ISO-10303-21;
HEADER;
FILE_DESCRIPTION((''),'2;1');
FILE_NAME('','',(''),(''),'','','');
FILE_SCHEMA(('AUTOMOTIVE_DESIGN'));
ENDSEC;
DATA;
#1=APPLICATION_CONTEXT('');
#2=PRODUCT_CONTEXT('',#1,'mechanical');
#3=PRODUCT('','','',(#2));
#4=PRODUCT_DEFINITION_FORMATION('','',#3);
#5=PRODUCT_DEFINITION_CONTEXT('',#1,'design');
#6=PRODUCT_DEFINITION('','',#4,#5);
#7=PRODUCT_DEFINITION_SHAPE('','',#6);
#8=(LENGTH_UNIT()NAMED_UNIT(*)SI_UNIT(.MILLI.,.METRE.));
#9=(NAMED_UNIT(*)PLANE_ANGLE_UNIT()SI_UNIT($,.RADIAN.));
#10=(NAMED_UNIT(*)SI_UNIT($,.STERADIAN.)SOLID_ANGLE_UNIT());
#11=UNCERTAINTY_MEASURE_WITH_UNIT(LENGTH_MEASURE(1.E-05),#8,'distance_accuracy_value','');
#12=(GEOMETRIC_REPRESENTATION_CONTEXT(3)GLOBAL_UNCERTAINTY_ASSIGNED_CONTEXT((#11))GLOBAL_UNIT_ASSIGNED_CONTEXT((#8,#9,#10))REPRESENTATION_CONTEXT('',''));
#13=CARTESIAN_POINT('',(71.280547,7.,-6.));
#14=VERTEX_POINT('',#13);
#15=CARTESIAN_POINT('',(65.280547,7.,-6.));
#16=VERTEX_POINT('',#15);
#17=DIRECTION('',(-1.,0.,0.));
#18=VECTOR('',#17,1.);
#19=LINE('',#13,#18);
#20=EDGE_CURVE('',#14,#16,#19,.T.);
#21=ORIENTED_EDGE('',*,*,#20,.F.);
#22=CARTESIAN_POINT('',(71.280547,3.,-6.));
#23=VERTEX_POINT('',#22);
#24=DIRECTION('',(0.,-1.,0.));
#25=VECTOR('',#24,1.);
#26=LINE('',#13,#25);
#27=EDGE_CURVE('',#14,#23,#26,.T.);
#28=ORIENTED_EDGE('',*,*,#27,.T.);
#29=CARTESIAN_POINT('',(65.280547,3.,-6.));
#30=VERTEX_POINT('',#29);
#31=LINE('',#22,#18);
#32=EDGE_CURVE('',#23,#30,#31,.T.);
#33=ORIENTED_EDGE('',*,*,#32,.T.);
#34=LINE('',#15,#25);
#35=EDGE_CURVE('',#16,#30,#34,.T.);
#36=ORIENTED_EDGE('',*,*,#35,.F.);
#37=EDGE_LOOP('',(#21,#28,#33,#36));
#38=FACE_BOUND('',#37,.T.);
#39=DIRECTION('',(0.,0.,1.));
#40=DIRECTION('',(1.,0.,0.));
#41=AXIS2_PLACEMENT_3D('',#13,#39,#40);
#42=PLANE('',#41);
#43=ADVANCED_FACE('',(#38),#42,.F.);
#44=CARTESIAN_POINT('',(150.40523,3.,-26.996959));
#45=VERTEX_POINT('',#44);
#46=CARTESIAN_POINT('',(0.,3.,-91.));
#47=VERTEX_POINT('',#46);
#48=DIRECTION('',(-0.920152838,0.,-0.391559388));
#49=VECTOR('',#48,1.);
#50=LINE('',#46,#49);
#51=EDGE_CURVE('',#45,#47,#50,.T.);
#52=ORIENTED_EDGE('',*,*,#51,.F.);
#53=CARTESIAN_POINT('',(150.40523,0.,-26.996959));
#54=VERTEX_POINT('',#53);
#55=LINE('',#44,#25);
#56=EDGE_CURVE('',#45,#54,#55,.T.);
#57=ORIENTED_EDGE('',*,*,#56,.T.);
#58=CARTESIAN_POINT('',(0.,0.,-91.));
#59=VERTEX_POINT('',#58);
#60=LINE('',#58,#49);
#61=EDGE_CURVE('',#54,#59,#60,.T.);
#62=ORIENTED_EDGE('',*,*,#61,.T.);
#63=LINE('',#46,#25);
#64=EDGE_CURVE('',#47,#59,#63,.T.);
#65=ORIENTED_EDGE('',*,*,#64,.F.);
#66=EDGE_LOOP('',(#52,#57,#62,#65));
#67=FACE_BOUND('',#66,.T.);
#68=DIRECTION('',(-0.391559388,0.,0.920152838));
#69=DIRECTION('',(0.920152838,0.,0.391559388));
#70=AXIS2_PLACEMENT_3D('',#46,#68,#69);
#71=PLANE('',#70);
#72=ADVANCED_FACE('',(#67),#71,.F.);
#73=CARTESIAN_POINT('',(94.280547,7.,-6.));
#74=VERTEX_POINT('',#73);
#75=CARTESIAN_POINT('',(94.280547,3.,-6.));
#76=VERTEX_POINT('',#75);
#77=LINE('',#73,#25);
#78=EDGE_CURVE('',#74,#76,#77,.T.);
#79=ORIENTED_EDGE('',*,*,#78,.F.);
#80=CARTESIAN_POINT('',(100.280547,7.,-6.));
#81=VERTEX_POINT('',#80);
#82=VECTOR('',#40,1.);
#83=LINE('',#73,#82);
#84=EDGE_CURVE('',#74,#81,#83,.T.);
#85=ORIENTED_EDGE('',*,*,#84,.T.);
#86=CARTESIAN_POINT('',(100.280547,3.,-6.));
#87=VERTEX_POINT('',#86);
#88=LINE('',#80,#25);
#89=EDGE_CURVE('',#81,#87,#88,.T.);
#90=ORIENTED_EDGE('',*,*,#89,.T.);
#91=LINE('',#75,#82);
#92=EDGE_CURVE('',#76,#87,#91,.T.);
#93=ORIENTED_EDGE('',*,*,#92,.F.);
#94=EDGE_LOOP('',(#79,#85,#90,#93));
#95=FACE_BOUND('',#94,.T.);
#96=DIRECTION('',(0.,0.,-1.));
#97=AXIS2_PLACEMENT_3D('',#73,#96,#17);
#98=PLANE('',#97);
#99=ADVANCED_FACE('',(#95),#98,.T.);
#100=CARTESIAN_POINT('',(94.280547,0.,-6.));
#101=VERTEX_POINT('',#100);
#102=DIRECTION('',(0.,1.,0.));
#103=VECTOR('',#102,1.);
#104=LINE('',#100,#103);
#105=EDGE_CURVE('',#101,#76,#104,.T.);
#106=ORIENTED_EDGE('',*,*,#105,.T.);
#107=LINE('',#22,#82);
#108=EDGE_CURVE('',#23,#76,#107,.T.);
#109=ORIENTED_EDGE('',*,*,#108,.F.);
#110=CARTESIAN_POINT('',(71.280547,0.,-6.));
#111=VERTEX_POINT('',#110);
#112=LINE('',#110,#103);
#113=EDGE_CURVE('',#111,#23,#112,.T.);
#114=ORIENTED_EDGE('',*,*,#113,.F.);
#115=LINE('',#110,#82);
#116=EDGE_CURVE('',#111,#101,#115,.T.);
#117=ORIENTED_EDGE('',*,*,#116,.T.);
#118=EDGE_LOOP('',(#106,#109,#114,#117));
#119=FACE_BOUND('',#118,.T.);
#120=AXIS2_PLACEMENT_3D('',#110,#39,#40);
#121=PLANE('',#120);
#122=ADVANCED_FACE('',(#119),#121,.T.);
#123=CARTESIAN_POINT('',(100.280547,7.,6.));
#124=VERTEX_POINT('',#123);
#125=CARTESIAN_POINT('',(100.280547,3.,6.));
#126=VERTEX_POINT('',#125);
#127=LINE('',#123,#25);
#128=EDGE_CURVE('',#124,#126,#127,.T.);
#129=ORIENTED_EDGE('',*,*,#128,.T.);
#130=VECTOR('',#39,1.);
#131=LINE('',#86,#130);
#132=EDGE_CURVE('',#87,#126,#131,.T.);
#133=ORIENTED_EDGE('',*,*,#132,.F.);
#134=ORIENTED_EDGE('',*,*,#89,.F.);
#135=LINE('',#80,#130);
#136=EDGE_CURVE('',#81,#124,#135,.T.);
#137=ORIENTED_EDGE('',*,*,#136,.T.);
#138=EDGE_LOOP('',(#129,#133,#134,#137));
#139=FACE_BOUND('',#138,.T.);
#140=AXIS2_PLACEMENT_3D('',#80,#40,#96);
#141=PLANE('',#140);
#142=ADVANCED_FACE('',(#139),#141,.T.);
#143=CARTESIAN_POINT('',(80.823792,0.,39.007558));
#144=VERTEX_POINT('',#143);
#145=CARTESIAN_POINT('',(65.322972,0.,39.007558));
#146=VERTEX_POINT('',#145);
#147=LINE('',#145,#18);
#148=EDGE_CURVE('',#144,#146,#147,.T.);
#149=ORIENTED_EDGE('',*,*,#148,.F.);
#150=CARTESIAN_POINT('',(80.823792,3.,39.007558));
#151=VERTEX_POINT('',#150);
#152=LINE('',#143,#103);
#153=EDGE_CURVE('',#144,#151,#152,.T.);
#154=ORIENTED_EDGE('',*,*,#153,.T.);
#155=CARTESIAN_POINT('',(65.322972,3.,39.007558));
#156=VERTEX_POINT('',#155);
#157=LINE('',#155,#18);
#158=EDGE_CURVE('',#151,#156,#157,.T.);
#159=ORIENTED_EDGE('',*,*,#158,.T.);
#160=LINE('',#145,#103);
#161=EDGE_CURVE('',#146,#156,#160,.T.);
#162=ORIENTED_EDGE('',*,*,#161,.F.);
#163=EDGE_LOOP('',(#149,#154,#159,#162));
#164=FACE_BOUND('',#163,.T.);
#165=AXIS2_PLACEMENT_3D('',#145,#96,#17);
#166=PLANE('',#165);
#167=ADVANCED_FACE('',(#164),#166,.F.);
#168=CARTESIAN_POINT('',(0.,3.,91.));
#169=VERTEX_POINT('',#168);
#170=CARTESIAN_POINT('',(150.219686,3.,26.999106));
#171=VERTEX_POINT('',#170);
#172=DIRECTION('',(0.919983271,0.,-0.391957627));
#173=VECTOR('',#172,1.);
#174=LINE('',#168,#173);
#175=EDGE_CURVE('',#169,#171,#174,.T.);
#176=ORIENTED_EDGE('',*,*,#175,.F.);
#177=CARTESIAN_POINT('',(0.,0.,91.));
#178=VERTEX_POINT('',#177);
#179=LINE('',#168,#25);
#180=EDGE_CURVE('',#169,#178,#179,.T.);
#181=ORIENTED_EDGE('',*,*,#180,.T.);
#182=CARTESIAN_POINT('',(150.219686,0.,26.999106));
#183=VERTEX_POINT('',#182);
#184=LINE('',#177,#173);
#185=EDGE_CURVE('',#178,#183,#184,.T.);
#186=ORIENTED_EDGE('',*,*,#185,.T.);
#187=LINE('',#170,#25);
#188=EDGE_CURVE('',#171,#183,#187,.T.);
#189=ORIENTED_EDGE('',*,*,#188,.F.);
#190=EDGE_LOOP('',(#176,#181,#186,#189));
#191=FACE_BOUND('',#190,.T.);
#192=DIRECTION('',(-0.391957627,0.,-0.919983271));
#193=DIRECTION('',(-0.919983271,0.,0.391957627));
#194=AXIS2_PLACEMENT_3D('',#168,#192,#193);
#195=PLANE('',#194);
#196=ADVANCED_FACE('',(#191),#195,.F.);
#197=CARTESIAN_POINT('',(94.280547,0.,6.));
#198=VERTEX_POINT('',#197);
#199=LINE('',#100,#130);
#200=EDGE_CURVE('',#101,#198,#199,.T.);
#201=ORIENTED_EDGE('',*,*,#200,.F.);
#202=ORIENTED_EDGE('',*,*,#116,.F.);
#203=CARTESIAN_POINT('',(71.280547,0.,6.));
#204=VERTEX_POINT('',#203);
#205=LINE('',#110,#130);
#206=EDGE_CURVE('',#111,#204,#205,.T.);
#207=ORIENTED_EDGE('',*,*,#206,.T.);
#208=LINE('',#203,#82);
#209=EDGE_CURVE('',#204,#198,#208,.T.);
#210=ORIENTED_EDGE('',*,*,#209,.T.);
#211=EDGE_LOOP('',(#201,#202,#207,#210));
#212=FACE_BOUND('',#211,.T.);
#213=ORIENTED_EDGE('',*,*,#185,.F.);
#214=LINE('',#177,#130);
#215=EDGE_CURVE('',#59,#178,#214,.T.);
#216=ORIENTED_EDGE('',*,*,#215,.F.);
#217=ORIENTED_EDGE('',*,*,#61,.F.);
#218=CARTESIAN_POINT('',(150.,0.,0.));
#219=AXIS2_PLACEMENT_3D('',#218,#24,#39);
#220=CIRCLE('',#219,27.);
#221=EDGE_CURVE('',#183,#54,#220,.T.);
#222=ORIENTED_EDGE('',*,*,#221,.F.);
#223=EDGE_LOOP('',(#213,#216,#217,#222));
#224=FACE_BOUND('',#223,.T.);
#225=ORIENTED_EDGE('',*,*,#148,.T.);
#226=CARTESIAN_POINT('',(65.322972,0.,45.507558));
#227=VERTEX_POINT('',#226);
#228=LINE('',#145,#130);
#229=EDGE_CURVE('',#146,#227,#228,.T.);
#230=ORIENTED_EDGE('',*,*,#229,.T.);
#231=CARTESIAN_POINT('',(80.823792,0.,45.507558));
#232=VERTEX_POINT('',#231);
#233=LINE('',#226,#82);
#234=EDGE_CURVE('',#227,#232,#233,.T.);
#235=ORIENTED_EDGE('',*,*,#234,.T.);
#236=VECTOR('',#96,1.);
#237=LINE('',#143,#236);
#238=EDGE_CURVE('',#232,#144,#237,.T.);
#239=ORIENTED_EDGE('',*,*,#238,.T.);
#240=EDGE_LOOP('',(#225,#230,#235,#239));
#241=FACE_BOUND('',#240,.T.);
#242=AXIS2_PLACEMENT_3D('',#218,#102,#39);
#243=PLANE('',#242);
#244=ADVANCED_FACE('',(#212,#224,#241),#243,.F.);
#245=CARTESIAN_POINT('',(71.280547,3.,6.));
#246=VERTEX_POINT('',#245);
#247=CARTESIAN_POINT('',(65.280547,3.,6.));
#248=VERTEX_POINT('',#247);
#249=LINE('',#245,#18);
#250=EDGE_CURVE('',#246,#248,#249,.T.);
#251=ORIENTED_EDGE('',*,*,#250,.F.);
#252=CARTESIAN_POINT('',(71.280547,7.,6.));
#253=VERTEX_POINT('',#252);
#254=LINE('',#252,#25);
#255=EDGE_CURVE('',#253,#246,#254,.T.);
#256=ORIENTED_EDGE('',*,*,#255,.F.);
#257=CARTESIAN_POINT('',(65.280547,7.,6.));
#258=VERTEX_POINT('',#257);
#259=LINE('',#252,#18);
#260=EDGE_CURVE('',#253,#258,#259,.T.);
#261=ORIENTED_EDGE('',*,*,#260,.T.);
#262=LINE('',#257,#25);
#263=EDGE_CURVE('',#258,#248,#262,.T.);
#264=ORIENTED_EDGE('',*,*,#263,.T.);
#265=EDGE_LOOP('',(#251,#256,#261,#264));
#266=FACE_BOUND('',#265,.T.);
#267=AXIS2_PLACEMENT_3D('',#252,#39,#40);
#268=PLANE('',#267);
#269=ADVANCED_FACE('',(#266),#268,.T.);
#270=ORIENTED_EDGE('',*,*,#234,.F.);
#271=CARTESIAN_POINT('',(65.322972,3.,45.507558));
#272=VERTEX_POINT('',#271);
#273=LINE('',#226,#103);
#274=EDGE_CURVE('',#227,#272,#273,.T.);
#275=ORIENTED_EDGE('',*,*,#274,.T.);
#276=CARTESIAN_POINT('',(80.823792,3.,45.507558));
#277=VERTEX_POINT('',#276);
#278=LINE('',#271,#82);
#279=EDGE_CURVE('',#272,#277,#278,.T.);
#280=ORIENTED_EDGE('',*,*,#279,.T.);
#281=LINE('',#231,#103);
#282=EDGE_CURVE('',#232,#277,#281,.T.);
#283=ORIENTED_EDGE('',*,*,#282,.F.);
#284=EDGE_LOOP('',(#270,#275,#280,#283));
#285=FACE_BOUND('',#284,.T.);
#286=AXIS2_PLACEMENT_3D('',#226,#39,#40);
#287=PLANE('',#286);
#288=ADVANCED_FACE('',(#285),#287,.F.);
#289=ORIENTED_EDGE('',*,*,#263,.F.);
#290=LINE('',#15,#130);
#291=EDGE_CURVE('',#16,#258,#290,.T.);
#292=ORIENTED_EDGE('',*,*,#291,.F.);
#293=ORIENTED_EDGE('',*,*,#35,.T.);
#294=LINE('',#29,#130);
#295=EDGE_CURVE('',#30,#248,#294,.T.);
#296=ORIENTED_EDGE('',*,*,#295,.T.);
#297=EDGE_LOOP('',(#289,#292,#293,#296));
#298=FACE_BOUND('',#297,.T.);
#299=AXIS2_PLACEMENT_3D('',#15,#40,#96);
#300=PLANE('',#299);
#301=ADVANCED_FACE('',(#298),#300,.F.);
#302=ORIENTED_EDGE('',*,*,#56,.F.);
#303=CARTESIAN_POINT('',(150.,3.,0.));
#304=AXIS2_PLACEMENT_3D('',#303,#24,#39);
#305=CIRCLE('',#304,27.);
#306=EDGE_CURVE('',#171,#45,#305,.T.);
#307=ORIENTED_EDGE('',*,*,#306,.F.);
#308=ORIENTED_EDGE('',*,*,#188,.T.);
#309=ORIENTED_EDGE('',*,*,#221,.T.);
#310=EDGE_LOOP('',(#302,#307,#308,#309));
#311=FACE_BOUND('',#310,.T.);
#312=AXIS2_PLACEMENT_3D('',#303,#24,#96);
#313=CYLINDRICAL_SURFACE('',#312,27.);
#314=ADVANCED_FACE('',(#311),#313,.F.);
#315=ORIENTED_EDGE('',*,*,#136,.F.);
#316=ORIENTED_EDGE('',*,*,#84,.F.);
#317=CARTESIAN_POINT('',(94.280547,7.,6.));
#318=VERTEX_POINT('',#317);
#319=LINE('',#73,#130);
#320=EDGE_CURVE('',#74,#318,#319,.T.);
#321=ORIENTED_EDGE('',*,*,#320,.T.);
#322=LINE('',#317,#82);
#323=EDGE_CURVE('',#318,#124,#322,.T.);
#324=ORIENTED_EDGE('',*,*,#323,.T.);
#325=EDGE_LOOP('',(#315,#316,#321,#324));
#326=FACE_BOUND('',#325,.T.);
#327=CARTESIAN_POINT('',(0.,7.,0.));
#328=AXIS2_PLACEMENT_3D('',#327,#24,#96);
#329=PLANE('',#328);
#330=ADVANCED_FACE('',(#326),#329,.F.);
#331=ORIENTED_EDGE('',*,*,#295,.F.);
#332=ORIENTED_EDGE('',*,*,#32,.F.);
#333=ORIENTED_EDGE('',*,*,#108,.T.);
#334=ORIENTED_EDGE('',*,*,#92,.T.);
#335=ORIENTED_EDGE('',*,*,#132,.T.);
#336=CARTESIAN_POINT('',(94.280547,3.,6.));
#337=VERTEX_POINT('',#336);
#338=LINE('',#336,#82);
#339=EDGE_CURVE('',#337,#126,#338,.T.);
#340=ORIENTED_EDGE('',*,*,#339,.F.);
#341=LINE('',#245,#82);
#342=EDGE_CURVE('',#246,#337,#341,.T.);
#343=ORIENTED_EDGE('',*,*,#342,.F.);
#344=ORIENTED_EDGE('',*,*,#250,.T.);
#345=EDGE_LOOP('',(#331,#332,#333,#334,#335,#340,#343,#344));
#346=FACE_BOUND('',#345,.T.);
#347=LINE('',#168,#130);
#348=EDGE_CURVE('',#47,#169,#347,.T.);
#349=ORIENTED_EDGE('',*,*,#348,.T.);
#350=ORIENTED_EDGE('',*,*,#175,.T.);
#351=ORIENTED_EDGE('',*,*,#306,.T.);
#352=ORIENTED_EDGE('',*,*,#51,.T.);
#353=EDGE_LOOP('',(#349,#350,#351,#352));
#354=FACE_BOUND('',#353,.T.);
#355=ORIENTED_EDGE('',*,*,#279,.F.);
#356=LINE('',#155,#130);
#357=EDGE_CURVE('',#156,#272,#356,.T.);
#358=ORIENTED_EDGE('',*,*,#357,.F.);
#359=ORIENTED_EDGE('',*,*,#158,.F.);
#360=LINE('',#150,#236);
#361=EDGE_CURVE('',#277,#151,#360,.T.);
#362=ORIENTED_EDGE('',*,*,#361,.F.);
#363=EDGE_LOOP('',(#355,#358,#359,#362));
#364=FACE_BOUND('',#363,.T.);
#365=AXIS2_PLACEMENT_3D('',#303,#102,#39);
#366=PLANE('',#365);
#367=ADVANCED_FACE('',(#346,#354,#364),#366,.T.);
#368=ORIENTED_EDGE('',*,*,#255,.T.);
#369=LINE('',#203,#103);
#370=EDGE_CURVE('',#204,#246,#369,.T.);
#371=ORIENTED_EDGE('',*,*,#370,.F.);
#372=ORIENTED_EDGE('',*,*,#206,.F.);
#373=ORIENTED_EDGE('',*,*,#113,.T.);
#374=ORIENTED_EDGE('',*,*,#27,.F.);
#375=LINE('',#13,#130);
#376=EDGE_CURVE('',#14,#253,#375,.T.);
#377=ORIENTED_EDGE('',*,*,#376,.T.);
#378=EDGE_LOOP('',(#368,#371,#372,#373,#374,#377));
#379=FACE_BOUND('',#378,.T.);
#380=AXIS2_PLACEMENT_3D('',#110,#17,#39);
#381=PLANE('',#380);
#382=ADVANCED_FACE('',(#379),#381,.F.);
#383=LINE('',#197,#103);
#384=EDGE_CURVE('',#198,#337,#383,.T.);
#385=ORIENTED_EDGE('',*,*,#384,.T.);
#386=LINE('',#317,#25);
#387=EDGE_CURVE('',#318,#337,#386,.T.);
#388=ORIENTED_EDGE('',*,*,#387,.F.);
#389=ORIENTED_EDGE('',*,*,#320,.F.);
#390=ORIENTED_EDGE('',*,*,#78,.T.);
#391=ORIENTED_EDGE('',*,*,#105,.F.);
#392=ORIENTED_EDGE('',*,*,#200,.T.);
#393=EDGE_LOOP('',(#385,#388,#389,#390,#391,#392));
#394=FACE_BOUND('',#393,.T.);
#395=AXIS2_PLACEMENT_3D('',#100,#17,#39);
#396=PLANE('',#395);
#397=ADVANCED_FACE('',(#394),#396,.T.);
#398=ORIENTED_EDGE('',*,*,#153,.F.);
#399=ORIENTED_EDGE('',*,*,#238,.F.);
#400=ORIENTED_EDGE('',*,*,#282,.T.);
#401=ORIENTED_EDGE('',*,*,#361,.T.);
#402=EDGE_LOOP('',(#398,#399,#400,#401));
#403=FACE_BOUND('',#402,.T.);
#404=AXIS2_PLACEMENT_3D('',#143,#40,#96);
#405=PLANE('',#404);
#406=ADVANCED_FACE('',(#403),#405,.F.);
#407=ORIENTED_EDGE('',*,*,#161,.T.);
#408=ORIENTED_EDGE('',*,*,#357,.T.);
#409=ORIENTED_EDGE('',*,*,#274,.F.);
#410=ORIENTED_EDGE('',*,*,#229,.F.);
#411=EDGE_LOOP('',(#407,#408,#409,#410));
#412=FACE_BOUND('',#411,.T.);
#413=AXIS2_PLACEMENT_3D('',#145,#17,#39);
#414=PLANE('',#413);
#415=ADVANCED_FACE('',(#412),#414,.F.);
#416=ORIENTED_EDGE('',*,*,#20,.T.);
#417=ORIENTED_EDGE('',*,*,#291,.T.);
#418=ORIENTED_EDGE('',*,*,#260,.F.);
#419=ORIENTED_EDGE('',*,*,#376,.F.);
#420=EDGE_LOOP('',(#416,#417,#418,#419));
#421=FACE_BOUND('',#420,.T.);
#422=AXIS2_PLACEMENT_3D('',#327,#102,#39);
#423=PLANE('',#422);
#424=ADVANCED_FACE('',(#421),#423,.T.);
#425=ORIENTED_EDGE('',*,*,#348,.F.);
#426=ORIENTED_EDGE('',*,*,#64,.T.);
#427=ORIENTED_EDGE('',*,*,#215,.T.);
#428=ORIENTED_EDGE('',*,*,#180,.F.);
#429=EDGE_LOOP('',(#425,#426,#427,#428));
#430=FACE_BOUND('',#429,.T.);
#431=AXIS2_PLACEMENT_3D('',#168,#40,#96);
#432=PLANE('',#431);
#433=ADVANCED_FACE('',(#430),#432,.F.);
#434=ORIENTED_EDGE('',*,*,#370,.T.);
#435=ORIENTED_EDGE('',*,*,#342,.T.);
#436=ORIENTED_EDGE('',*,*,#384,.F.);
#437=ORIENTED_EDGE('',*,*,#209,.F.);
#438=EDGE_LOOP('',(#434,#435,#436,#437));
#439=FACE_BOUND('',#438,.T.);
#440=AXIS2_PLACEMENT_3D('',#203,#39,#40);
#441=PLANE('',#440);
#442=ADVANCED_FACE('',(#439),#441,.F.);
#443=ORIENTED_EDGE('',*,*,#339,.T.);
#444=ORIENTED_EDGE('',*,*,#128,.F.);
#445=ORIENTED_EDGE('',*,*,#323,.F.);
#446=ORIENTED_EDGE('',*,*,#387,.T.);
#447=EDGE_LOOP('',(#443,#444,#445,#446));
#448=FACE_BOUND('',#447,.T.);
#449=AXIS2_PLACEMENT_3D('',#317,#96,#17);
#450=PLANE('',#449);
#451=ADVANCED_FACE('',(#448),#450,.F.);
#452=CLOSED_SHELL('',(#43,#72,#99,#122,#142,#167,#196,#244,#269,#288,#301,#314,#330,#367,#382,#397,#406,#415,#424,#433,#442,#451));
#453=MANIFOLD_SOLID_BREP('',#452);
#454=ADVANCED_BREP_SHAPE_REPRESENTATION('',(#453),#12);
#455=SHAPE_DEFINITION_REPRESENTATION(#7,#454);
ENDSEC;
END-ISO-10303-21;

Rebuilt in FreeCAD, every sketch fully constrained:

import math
import FreeCAD as App
import Part
import Sketcher
from FreeCAD import Vector
Q = App.Units.Quantity


def add_polygon(sketch, points):
    """Adds a closed chain of lines whose ends are joined by coincident constraints."""
    first, n = sketch.GeometryCount, len(points)
    for a, b in zip(points, points[1:] + points[:1]):
        sketch.addGeometry(Part.LineSegment(App.Vector(*a, 0), App.Vector(*b, 0)), False)
    for i in range(n):
        sketch.addConstraint(Sketcher.Constraint("Coincident", first + i, 2, first + (i + 1) % n, 1))

doc = App.newDocument("Part")
body = doc.addObject("PartDesign::Body", "Body")

sketch1 = doc.addObject("Sketcher::SketchObject", "Sketch")
body.addObject(sketch1)
sketch1.AttachmentSupport = (doc.XZ_Plane, [""])
sketch1.MapMode = "FlatFace"
sketch1.addGeometry(Part.LineSegment(Vector(0, -91, 0), Vector(0, 91, 0)), False)
sketch1.addGeometry(Part.LineSegment(Vector(0, 91, 0), Vector(150, 27, 0)), False)
sketch1.addGeometry(Part.ArcOfCircle(Part.Circle(Vector(150, 0, 0), Vector(0, 0, 1), 27), math.radians(90), math.radians(271)), False)
sketch1.addGeometry(Part.LineSegment(Vector(150, -27, 0), Vector(0, -91, 0)), False)
sketch1.addConstraint(Sketcher.Constraint("Coincident", 0, 2, 1, 1))
sketch1.addConstraint(Sketcher.Constraint("Coincident", 1, 2, 2, 1))
sketch1.addConstraint(Sketcher.Constraint("Coincident", 2, 2, 3, 1))
sketch1.addConstraint(Sketcher.Constraint("Coincident", 3, 2, 0, 1))
sketch1.addConstraint(Sketcher.Constraint("Vertical", 0))
sketch1.addConstraint(Sketcher.Constraint("Symmetric", 0, 2, 3, 2, -1, 1))
sketch1.addConstraint(Sketcher.Constraint("PointOnObject", 2, 3, -1))
sketch1.addConstraint(Sketcher.Constraint("Radius", 2, Q("27 mm")))
sketch1.addConstraint(Sketcher.Constraint("DistanceY", 0, 1, 0, 2, Q("182 mm")))
sketch1.addConstraint(Sketcher.Constraint("DistanceX", -1, 1, 2, 3, Q("150 mm")))
sketch1.addConstraint(Sketcher.Constraint("Distance", 3, Q("163.456791 mm")))
sketch1.addConstraint(Sketcher.Constraint("Distance", 1, Q("163.285236 mm")))
pad1 = doc.addObject("PartDesign::Pad", "Pad")
body.addObject(pad1)
pad1.Profile = sketch1
pad1.Length = 3
pad1.Reversed = True

sketch2 = doc.addObject("Sketcher::SketchObject", "Sketch001")
body.addObject(sketch2)
sketch2.AttachmentSupport = (doc.XZ_Plane, [""])
sketch2.MapMode = "FlatFace"
sketch2.AttachmentOffset = App.Placement(Vector(0, 0, -3), App.Rotation())
add_polygon(sketch2, [(65, 39), (65, 46), (81, 46), (81, 39)])
sketch2.addConstraint(Sketcher.Constraint("Vertical", 0))
sketch2.addConstraint(Sketcher.Constraint("Horizontal", 1))
sketch2.addConstraint(Sketcher.Constraint("Vertical", 2))
sketch2.addConstraint(Sketcher.Constraint("Horizontal", 3))
sketch2.addConstraint(Sketcher.Constraint("DistanceY", 0, 1, 0, 2, Q("6.5 mm")))
sketch2.addConstraint(Sketcher.Constraint("DistanceX", 1, 1, 1, 2, Q("15.50082 mm")))
sketch2.addConstraint(Sketcher.Constraint("DistanceX", -1, 1, 0, 2, Q("65.322972 mm")))
sketch2.addConstraint(Sketcher.Constraint("DistanceY", -1, 1, 0, 2, Q("45.507558 mm")))
pocket1 = doc.addObject("PartDesign::Pocket", "Pocket")
body.addObject(pocket1)
pocket1.Profile = sketch2
pocket1.Type = "ThroughAll"
pocket1.Reversed = True

sketch3 = doc.addObject("Sketcher::SketchObject", "Sketch002")
body.addObject(sketch3)
sketch3.AttachmentSupport = (doc.XZ_Plane, [""])
sketch3.MapMode = "FlatFace"
sketch3.AttachmentOffset = App.Placement(Vector(0, 0, -3), App.Rotation())
add_polygon(sketch3, [(71, -6), (71, 6), (94, 6), (94, -6)])
sketch3.addConstraint(Sketcher.Constraint("Vertical", 0))
sketch3.addConstraint(Sketcher.Constraint("Horizontal", 1))
sketch3.addConstraint(Sketcher.Constraint("Vertical", 2))
sketch3.addConstraint(Sketcher.Constraint("Horizontal", 3))
sketch3.addConstraint(Sketcher.Constraint("DistanceX", 1, 1, 1, 2, Q("23 mm")))
sketch3.addConstraint(Sketcher.Constraint("DistanceY", 0, 1, 0, 2, Q("12 mm")))
sketch3.addConstraint(Sketcher.Constraint("DistanceY", -1, 1, 0, 2, Q("6 mm")))
sketch3.addConstraint(Sketcher.Constraint("DistanceX", -1, 1, 0, 2, Q("71.280547 mm")))
pocket2 = doc.addObject("PartDesign::Pocket", "Pocket001")
body.addObject(pocket2)
pocket2.Profile = sketch3
pocket2.Type = "ThroughAll"
pocket2.Reversed = True

sketch4 = doc.addObject("Sketcher::SketchObject", "Sketch003")
body.addObject(sketch4)
sketch4.AttachmentSupport = (doc.XZ_Plane, [""])
sketch4.MapMode = "FlatFace"
sketch4.AttachmentOffset = App.Placement(Vector(0, 0, -3), App.Rotation())
add_polygon(sketch4, [(94, -6), (94, 6), (100, 6), (100, -6)])
add_polygon(sketch4, [(65, -6), (65, 6), (71, 6), (71, -6)])
sketch4.addConstraint(Sketcher.Constraint("Vertical", 0))
sketch4.addConstraint(Sketcher.Constraint("Horizontal", 1))
sketch4.addConstraint(Sketcher.Constraint("Vertical", 2))
sketch4.addConstraint(Sketcher.Constraint("Horizontal", 3))
sketch4.addConstraint(Sketcher.Constraint("Vertical", 4))
sketch4.addConstraint(Sketcher.Constraint("Horizontal", 5))
sketch4.addConstraint(Sketcher.Constraint("Vertical", 6))
sketch4.addConstraint(Sketcher.Constraint("Horizontal", 7))
sketch4.addConstraint(Sketcher.Constraint("Horizontal", 1, 2, 4, 2))
sketch4.addConstraint(Sketcher.Constraint("Horizontal", 3, 2, 6, 2))
sketch4.addConstraint(Sketcher.Constraint("Equal", 3, 5))
sketch4.addConstraint(Sketcher.Constraint("DistanceX", 1, 1, 1, 2, Q("6 mm")))
sketch4.addConstraint(Sketcher.Constraint("DistanceY", 0, 1, 0, 2, Q("12 mm")))
sketch4.addConstraint(Sketcher.Constraint("DistanceY", -1, 1, 0, 2, Q("6 mm")))
sketch4.addConstraint(Sketcher.Constraint("DistanceX", 4, 2, 0, 2, Q("29 mm")))
sketch4.addConstraint(Sketcher.Constraint("DistanceX", -1, 1, 0, 2, Q("94.280547 mm")))
pad2 = doc.addObject("PartDesign::Pad", "Pad001")
body.addObject(pad2)
pad2.Profile = sketch4
pad2.Length = 4
pad2.Reversed = True

doc.recompute()
